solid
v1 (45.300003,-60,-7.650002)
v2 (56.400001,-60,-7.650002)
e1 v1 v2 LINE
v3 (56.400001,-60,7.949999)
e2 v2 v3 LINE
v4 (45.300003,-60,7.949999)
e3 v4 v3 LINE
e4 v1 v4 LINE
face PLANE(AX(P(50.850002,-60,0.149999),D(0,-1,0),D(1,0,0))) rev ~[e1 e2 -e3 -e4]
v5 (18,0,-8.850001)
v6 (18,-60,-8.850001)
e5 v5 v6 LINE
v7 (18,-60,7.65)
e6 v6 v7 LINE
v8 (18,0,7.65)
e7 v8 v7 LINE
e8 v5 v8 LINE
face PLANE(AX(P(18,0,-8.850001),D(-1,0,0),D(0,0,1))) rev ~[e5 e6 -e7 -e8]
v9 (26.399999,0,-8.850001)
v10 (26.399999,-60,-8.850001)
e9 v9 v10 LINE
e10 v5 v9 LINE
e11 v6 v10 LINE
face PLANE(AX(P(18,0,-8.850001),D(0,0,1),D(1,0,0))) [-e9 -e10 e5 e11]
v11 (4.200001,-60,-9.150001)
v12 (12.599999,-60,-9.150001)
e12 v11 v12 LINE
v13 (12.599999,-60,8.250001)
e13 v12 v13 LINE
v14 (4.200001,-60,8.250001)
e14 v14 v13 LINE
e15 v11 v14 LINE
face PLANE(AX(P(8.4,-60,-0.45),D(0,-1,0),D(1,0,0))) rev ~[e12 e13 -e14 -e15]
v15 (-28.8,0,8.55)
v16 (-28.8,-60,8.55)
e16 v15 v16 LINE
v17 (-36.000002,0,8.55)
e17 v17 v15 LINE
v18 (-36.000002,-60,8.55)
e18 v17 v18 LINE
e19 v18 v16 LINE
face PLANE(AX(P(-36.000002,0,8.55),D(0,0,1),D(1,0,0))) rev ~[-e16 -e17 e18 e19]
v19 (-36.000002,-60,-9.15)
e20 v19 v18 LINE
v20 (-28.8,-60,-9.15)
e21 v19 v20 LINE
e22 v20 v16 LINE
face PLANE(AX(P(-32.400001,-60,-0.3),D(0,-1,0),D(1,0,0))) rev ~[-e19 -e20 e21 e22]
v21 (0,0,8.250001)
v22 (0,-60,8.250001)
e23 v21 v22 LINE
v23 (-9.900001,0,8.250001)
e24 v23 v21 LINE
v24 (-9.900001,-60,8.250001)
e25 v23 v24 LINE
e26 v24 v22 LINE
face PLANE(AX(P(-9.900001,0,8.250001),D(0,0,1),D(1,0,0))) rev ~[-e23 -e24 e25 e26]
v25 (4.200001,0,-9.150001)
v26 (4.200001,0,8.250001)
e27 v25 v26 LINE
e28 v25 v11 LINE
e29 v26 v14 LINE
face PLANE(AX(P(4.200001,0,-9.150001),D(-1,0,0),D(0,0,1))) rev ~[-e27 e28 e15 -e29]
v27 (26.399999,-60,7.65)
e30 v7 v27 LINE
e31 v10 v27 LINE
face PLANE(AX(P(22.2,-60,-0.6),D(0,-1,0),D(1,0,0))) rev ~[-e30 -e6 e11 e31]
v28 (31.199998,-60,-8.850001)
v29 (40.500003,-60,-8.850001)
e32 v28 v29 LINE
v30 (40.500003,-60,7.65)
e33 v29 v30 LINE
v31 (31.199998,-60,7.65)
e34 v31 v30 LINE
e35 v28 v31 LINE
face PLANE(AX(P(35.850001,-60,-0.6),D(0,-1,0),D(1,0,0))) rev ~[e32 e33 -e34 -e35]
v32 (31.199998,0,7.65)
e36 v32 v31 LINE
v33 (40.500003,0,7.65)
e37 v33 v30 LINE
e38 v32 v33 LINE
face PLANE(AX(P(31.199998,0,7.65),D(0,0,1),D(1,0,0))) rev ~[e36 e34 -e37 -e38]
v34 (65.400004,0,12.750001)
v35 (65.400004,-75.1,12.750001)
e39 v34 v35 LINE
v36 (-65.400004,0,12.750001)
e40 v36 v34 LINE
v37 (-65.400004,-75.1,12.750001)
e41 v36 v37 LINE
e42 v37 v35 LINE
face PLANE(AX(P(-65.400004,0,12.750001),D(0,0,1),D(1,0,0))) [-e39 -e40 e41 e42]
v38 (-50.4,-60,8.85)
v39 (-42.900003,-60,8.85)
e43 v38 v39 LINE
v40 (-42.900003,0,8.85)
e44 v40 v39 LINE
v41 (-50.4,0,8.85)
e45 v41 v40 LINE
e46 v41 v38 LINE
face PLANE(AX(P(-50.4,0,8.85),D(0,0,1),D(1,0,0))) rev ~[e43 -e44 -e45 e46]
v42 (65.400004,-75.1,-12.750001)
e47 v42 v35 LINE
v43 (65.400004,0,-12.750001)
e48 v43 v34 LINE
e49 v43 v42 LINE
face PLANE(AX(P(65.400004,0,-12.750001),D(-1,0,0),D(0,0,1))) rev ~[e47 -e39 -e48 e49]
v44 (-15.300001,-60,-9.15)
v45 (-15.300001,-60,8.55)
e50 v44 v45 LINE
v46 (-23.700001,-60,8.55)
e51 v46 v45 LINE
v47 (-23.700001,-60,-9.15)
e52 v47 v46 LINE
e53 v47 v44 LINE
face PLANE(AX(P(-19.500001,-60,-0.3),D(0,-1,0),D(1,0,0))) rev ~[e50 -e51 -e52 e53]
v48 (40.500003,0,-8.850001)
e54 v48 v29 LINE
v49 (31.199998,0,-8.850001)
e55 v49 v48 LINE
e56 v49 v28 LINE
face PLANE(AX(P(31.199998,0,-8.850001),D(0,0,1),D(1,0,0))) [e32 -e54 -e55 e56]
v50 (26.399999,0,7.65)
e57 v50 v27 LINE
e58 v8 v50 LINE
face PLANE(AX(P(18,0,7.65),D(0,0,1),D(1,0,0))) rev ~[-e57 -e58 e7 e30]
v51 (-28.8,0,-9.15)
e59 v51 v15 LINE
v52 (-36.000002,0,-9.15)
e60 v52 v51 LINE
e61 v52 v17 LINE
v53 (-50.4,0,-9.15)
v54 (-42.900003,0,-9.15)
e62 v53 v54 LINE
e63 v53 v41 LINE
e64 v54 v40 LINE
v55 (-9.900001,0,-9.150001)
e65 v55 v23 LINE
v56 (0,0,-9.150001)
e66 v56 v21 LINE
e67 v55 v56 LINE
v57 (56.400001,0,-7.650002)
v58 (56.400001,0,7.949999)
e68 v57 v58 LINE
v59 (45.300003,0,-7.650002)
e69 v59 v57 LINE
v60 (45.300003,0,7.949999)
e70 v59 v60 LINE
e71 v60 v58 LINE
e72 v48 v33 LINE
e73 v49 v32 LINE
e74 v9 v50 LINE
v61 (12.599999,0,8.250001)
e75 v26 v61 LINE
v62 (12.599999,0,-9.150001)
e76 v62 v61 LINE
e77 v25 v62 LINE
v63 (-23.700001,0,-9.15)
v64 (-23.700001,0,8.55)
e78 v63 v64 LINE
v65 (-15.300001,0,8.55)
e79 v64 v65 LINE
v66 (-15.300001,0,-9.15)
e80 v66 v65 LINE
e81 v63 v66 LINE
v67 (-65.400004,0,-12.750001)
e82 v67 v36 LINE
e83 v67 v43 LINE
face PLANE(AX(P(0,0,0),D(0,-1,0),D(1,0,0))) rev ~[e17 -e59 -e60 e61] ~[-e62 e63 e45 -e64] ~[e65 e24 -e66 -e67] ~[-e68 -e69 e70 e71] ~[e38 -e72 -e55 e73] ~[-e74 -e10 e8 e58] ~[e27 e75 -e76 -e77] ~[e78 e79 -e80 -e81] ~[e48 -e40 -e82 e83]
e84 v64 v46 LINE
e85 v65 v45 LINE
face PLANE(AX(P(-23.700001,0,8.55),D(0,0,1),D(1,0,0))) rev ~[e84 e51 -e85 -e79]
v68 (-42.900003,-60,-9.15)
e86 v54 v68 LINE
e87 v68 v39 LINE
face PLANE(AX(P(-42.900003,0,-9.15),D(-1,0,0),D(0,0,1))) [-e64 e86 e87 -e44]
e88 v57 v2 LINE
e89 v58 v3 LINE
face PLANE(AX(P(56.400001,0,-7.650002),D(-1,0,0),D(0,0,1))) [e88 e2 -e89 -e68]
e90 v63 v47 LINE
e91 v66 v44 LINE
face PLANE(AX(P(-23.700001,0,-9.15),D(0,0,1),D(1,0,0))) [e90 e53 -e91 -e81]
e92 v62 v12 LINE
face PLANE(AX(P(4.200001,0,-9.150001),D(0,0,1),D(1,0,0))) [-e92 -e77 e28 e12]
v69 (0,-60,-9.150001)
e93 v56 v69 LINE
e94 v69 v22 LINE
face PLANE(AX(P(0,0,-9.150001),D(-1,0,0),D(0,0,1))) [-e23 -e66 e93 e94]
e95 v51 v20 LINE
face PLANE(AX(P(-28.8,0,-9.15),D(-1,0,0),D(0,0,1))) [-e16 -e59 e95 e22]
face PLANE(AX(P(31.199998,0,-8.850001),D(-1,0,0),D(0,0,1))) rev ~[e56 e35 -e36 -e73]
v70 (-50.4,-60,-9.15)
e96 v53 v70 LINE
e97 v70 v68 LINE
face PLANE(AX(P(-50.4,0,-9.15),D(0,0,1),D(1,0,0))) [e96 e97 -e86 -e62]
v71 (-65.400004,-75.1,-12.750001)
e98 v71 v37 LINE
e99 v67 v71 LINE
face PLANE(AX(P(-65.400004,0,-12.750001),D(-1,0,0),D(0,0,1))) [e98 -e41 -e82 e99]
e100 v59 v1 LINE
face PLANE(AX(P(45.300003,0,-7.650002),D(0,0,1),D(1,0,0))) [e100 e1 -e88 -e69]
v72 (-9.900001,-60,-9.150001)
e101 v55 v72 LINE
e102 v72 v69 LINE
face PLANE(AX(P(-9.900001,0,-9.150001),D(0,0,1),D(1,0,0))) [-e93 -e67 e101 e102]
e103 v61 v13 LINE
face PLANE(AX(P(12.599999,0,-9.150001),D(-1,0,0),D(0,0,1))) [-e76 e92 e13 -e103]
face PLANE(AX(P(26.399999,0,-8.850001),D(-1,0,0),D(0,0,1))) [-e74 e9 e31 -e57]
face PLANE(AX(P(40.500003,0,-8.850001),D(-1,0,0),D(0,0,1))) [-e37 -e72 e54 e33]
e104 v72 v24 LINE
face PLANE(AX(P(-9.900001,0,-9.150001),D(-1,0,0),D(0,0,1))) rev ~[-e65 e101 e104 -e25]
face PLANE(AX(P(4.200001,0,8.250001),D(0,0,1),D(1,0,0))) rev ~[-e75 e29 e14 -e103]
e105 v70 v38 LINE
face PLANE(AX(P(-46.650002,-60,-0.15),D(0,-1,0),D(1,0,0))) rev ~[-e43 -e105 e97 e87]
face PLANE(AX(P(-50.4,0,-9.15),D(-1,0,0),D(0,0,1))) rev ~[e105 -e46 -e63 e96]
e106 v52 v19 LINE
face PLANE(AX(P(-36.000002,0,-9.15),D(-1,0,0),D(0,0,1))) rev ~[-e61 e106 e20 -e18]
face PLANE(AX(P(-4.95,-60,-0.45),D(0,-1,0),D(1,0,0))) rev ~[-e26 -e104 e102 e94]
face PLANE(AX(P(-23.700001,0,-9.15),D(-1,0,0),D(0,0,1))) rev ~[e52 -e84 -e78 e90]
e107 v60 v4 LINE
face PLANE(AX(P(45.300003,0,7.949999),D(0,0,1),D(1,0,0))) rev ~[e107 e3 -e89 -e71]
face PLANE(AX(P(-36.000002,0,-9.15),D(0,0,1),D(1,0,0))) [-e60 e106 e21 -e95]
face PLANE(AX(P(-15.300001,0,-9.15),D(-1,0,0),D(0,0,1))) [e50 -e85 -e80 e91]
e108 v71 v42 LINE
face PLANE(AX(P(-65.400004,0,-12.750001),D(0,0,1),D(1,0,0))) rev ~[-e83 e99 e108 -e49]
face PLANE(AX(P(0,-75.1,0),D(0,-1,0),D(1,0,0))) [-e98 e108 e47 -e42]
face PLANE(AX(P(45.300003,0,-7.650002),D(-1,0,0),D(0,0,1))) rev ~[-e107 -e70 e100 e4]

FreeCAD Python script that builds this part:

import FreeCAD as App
import Part
import Sketcher
Q = App.Units.Quantity

doc = App.newDocument("Part")
body = doc.addObject("PartDesign::Body", "Body")

sketch1 = doc.addObject("Sketcher::SketchObject", "Sketch")
body.addObject(sketch1)
sketch1.AttachmentSupport = (doc.XZ_Plane, [""])
sketch1.MapMode = "FlatFace"
sketch1.addGeometry([
    Part.LineSegment(App.Vector(-65, 13, 0), App.Vector(-65, -13, 0)),
    Part.LineSegment(App.Vector(-65, -13, 0), App.Vector(65, -13, 0)),
    Part.LineSegment(App.Vector(65, -13, 0), App.Vector(65, 13, 0)),
    Part.LineSegment(App.Vector(65, 13, 0), App.Vector(-65, 13, 0)),
], False)
sketch1.addConstraint([
    Sketcher.Constraint("Coincident", 0, 2, 1, 1),
    Sketcher.Constraint("Coincident", 1, 2, 2, 1),
    Sketcher.Constraint("Coincident", 2, 2, 3, 1),
    Sketcher.Constraint("Coincident", 3, 2, 0, 1),
    Sketcher.Constraint("Vertical", 0),
    Sketcher.Constraint("Horizontal", 1),
    Sketcher.Constraint("Vertical", 2),
    Sketcher.Constraint("Horizontal", 3),
    Sketcher.Constraint("Symmetric", 0, 2, 2, 2, -1, 1),
    Sketcher.Constraint("DistanceY", 0, 2, 0, 1, Q("25.500002 mm")),
    Sketcher.Constraint("DistanceX", 1, 1, 1, 2, Q("130.800008 mm")),
])
pad1 = doc.addObject("PartDesign::Pad", "Pad")
body.addObject(pad1)
pad1.Profile = sketch1
pad1.Length = 75.1

sketch2 = doc.addObject("Sketcher::SketchObject", "Sketch001")
body.addObject(sketch2)
sketch2.AttachmentSupport = (doc.XZ_Plane, [""])
sketch2.MapMode = "FlatFace"
sketch2.addGeometry([
    Part.LineSegment(App.Vector(-50, 9, 0), App.Vector(-50, -9, 0)),
    Part.LineSegment(App.Vector(-50, -9, 0), App.Vector(-43, -9, 0)),
    Part.LineSegment(App.Vector(-43, -9, 0), App.Vector(-43, 9, 0)),
    Part.LineSegment(App.Vector(-43, 9, 0), App.Vector(-50, 9, 0)),
    Part.LineSegment(App.Vector(-36, 9, 0), App.Vector(-36, -9, 0)),
    Part.LineSegment(App.Vector(-36, -9, 0), App.Vector(-29, -9, 0)),
    Part.LineSegment(App.Vector(-29, -9, 0), App.Vector(-29, 9, 0)),
    Part.LineSegment(App.Vector(-29, 9, 0), App.Vector(-36, 9, 0)),
    Part.LineSegment(App.Vector(-24, 9, 0), App.Vector(-24, -9, 0)),
    Part.LineSegment(App.Vector(-24, -9, 0), App.Vector(-15, -9, 0)),
    Part.LineSegment(App.Vector(-15, -9, 0), App.Vector(-15, 9, 0)),
    Part.LineSegment(App.Vector(-15, 9, 0), App.Vector(-24, 9, 0)),
    Part.LineSegment(App.Vector(-10, 8, 0), App.Vector(-10, -9, 0)),
    Part.LineSegment(App.Vector(-10, -9, 0), App.Vector(0, -9, 0)),
    Part.LineSegment(App.Vector(0, -9, 0), App.Vector(0, 8, 0)),
    Part.LineSegment(App.Vector(0, 8, 0), App.Vector(-10, 8, 0)),
    Part.LineSegment(App.Vector(4, 8, 0), App.Vector(4, -9, 0)),
    Part.LineSegment(App.Vector(4, -9, 0), App.Vector(13, -9, 0)),
    Part.LineSegment(App.Vector(13, -9, 0), App.Vector(13, 8, 0)),
    Part.LineSegment(App.Vector(13, 8, 0), App.Vector(4, 8, 0)),
    Part.LineSegment(App.Vector(18, 8, 0), App.Vector(18, -9, 0)),
    Part.LineSegment(App.Vector(18, -9, 0), App.Vector(26, -9, 0)),
    Part.LineSegment(App.Vector(26, -9, 0), App.Vector(26, 8, 0)),
    Part.LineSegment(App.Vector(26, 8, 0), App.Vector(18, 8, 0)),
    Part.LineSegment(App.Vector(31, 8, 0), App.Vector(31, -9, 0)),
    Part.LineSegment(App.Vector(31, -9, 0), App.Vector(41, -9, 0)),
    Part.LineSegment(App.Vector(41, -9, 0), App.Vector(41, 8, 0)),
    Part.LineSegment(App.Vector(41, 8, 0), App.Vector(31, 8, 0)),
    Part.LineSegment(App.Vector(45, 8, 0), App.Vector(45, -8, 0)),
    Part.LineSegment(App.Vector(45, -8, 0), App.Vector(56, -8, 0)),
    Part.LineSegment(App.Vector(56, -8, 0), App.Vector(56, 8, 0)),
    Part.LineSegment(App.Vector(56, 8, 0), App.Vector(45, 8, 0)),
], False)
sketch2.addConstraint([
    Sketcher.Constraint("Coincident", 0, 2, 1, 1),
    Sketcher.Constraint("Coincident", 1, 2, 2, 1),
    Sketcher.Constraint("Coincident", 2, 2, 3, 1),
    Sketcher.Constraint("Coincident", 3, 2, 0, 1),
    Sketcher.Constraint("Coincident", 4, 2, 5, 1),
    Sketcher.Constraint("Coincident", 5, 2, 6, 1),
    Sketcher.Constraint("Coincident", 6, 2, 7, 1),
    Sketcher.Constraint("Coincident", 7, 2, 4, 1),
    Sketcher.Constraint("Coincident", 8, 2, 9, 1),
    Sketcher.Constraint("Coincident", 9, 2, 10, 1),
    Sketcher.Constraint("Coincident", 10, 2, 11, 1),
    Sketcher.Constraint("Coincident", 11, 2, 8, 1),
    Sketcher.Constraint("Coincident", 12, 2, 13, 1),
    Sketcher.Constraint("Coincident", 13, 2, 14, 1),
    Sketcher.Constraint("Coincident", 14, 2, 15, 1),
    Sketcher.Constraint("Coincident", 15, 2, 12, 1),
    Sketcher.Constraint("Coincident", 16, 2, 17, 1),
    Sketcher.Constraint("Coincident", 17, 2, 18, 1),
    Sketcher.Constraint("Coincident", 18, 2, 19, 1),
    Sketcher.Constraint("Coincident", 19, 2, 16, 1),
    Sketcher.Constraint("Coincident", 20, 2, 21, 1),
    Sketcher.Constraint("Coincident", 21, 2, 22, 1),
    Sketcher.Constraint("Coincident", 22, 2, 23, 1),
    Sketcher.Constraint("Coincident", 23, 2, 20, 1),
    Sketcher.Constraint("Coincident", 24, 2, 25, 1),
    Sketcher.Constraint("Coincident", 25, 2, 26, 1),
    Sketcher.Constraint("Coincident", 26, 2, 27, 1),
    Sketcher.Constraint("Coincident", 27, 2, 24, 1),
    Sketcher.Constraint("Coincident", 28, 2, 29, 1),
    Sketcher.Constraint("Coincident", 29, 2, 30, 1),
    Sketcher.Constraint("Coincident", 30, 2, 31, 1),
    Sketcher.Constraint("Coincident", 31, 2, 28, 1),
    Sketcher.Constraint("Vertical", 0),
    Sketcher.Constraint("Horizontal", 1),
    Sketcher.Constraint("Vertical", 2),
    Sketcher.Constraint("Horizontal", 3),
    Sketcher.Constraint("Vertical", 4),
    Sketcher.Constraint("Horizontal", 5),
    Sketcher.Constraint("Vertical", 6),
    Sketcher.Constraint("Horizontal", 7),
    Sketcher.Constraint("Vertical", 8),
    Sketcher.Constraint("Horizontal", 9),
    Sketcher.Constraint("Vertical", 10),
    Sketcher.Constraint("Horizontal", 11),
    Sketcher.Constraint("Vertical", 12),
    Sketcher.Constraint("Horizontal", 13),
    Sketcher.Constraint("Vertical", 14),
    Sketcher.Constraint("Horizontal", 15),
    Sketcher.Constraint("Vertical", 16),
    Sketcher.Constraint("Horizontal", 17),
    Sketcher.Constraint("Vertical", 18),
    Sketcher.Constraint("Horizontal", 19),
    Sketcher.Constraint("Vertical", 20),
    Sketcher.Constraint("Horizontal", 21),
    Sketcher.Constraint("Vertical", 22),
    Sketcher.Constraint("Horizontal", 23),
    Sketcher.Constraint("Vertical", 24),
    Sketcher.Constraint("Horizontal", 25),
    Sketcher.Constraint("Vertical", 26),
    Sketcher.Constraint("Horizontal", 27),
    Sketcher.Constraint("Vertical", 28),
    Sketcher.Constraint("Horizontal", 29),
    Sketcher.Constraint("Vertical", 30),
    Sketcher.Constraint("Horizontal", 31),
    Sketcher.Constraint("PointOnObject", 13, 2, -2),
    Sketcher.Constraint("Horizontal", 1, 2, 4, 2),
    Sketcher.Constraint("Horizontal", 5, 2, 8, 2),
    Sketcher.Constraint("Horizontal", 7, 2, 10, 2),
    Sketcher.Constraint("Horizontal", 9, 2, 12, 2),
    Sketcher.Constraint("Horizontal", 13, 2, 16, 2),
    Sketcher.Constraint("Horizontal", 15, 2, 18, 2),
    Sketcher.Constraint("Horizontal", 21, 2, 24, 2),
    Sketcher.Constraint("Horizontal", 23, 2, 26, 2),
    Sketcher.Constraint("Equal", 19, 21),
    Sketcher.Constraint("Equal", 11, 23),
    Sketcher.Constraint("DistanceY", 0, 2, 0, 1, Q("18 mm")),
    Sketcher.Constraint("DistanceX", 5, 1, 5, 2, Q("7.200001 mm")),
    Sketcher.Constraint("DistanceX", 9, 1, 9, 2, Q("8.4 mm")),
    Sketcher.Constraint("DistanceX", 13, 1, 13, 2, Q("9.900001 mm")),
    Sketcher.Constraint("DistanceX", 29, 1, 29, 2, Q("11.099998 mm")),
    Sketcher.Constraint("DistanceY", 4, 2, 4, 1, Q("17.7 mm")),
    Sketcher.Constraint("DistanceY", 12, 2, 12, 1, Q("17.400001 mm")),
    Sketcher.Constraint("DistanceY", 20, 2, 20, 1, Q("16.500001 mm")),
    Sketcher.Constraint("DistanceY", 28, 2, 28, 1, Q("15.600001 mm")),
    Sketcher.Constraint("DistanceX", 4, 2, -1, 1, Q("36.000002 mm")),
    Sketcher.Constraint("DistanceX", -1, 1, 20, 2, Q("18 mm")),
    Sketcher.Constraint("DistanceX", 0, 2, -1, 1, Q("50.4 mm")),
    Sketcher.Constraint("DistanceX", 8, 2, -1, 1, Q("23.700001 mm")),
    Sketcher.Constraint("DistanceX", -1, 1, 16, 2, Q("4.200001 mm")),
    Sketcher.Constraint("DistanceX", -1, 1, 24, 2, Q("31.199998 mm")),
    Sketcher.Constraint("DistanceX", -1, 1, 29, 2, Q("56.400001 mm")),
    Sketcher.Constraint("DistanceX", 1, 2, 4, 2, Q("6.900002 mm")),
    Sketcher.Constraint("DistanceY", 17, 2, 20, 2, Q("0.3 mm")),
    Sketcher.Constraint("DistanceX", 25, 2, 28, 2, Q("4.799999 mm")),
    Sketcher.Constraint("DistanceY", 25, 2, 28, 2, Q("1.199999 mm")),
    Sketcher.Constraint("DistanceY", 0, 2, -1, 1, Q("9.15 mm")),
])
pocket1 = doc.addObject("PartDesign::Pocket", "Pocket")
body.addObject(pocket1)
pocket1.Profile = sketch2
pocket1.Length = 60
pocket1.Reversed = True

doc.recompute()
